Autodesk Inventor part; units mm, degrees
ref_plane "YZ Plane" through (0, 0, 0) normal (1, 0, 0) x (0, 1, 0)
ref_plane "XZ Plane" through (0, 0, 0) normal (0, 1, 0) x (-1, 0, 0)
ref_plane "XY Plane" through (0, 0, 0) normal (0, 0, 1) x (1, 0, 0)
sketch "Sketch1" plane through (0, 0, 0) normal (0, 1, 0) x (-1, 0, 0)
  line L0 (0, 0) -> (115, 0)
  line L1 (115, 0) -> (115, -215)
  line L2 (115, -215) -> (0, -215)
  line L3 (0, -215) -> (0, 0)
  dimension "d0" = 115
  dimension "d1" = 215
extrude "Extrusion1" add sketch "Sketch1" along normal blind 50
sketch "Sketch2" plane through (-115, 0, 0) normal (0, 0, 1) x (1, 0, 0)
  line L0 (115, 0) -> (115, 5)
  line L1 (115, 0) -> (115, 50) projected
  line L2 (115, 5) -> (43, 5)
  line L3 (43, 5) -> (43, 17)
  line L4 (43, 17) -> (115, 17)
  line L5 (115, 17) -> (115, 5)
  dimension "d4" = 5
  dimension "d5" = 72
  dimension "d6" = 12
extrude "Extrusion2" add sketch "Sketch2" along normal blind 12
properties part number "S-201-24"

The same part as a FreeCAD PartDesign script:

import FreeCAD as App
import Part
import Sketcher
Q = App.Units.Quantity

doc = App.newDocument("Part")
params = doc.addObject("Spreadsheet::Sheet", "Params")
for row, (alias, value) in enumerate([
    ("sketch1_width", "115 mm"),
    ("sketch1_height", "215 mm"),
    ("pad1_length", "50 mm"),
    ("sketch2_width", "72 mm"),
    ("sketch2_height", "12 mm"),
    ("pad2_length", "12 mm"),
], start=1):
    params.set(f"A{row}", alias)
    params.set(f"B{row}", "=" + value)
    params.setAlias(f"B{row}", alias)

body = doc.addObject("PartDesign::Body", "Body")

# Sketch on XZ plane
sketch1 = doc.addObject("Sketcher::SketchObject", "Sketch")
body.addObject(sketch1)
sketch1.AttachmentSupport = (doc.XZ_Plane, [""])
sketch1.MapMode = "FlatFace"
sketch1.addGeometry([
    Part.LineSegment(App.Vector(-115, 0, 0), App.Vector(0, 0, 0)),
    Part.LineSegment(App.Vector(0, 0, 0), App.Vector(0, -215, 0)),
    Part.LineSegment(App.Vector(0, -215, 0), App.Vector(-115, -215, 0)),
    Part.LineSegment(App.Vector(-115, -215, 0), App.Vector(-115, 0, 0)),
], False)
sketch1.addConstraint([
    Sketcher.Constraint("Coincident", 0, 2, 1, 1),
    Sketcher.Constraint("Coincident", 1, 2, 2, 1),
    Sketcher.Constraint("Coincident", 2, 2, 3, 1),
    Sketcher.Constraint("Coincident", 3, 2, 0, 1),
    Sketcher.Constraint("Horizontal", 0),
    Sketcher.Constraint("Vertical", 1),
    Sketcher.Constraint("Horizontal", 2),
    Sketcher.Constraint("Vertical", 3),
    Sketcher.Constraint("Coincident", 0, 2, -1, 1),
    Sketcher.Constraint("DistanceX", 0, 1, 0, 2, Q("115 mm")),
    Sketcher.Constraint("DistanceY", 1, 2, 1, 1, Q("215 mm")),
])
sketch1.setExpression("Constraints[9]", "Params.sketch1_width")
sketch1.setExpression("Constraints[10]", "Params.sketch1_height")
pad1 = doc.addObject("PartDesign::Pad", "Pad")
body.addObject(pad1)
pad1.Profile = sketch1
pad1.setExpression("Length", "Params.pad1_length")
pad1.Reversed = True

# Sketch on XY plane
sketch2 = doc.addObject("Sketcher::SketchObject", "Sketch001")
body.addObject(sketch2)
sketch2.AttachmentSupport = (doc.XY_Plane, [""])
sketch2.MapMode = "FlatFace"
sketch2.addGeometry([
    Part.LineSegment(App.Vector(-72, 5, 0), App.Vector(0, 5, 0)),
    Part.LineSegment(App.Vector(0, 5, 0), App.Vector(0, 17, 0)),
    Part.LineSegment(App.Vector(0, 17, 0), App.Vector(-72, 17, 0)),
    Part.LineSegment(App.Vector(-72, 17, 0), App.Vector(-72, 5, 0)),
], False)
sketch2.addConstraint([
    Sketcher.Constraint("Coincident", 0, 2, 1, 1),
    Sketcher.Constraint("Coincident", 1, 2, 2, 1),
    Sketcher.Constraint("Coincident", 2, 2, 3, 1),
    Sketcher.Constraint("Coincident", 3, 2, 0, 1),
    Sketcher.Constraint("Horizontal", 0),
    Sketcher.Constraint("Vertical", 1),
    Sketcher.Constraint("Horizontal", 2),
    Sketcher.Constraint("Vertical", 3),
    Sketcher.Constraint("PointOnObject", 0, 2, -2),
    Sketcher.Constraint("DistanceX", 0, 1, 0, 2, Q("72 mm")),
    Sketcher.Constraint("DistanceY", 1, 1, 1, 2, Q("12 mm")),
    Sketcher.Constraint("DistanceY", -1, 1, 0, 2, Q("5 mm")),
])
sketch2.setExpression("Constraints[9]", "Params.sketch2_width")
sketch2.setExpression("Constraints[10]", "Params.sketch2_height")
pad2 = doc.addObject("PartDesign::Pad", "Pad001")
body.addObject(pad2)
pad2.Profile = sketch2
pad2.setExpression("Length", "Params.pad2_length")

doc.recompute()
